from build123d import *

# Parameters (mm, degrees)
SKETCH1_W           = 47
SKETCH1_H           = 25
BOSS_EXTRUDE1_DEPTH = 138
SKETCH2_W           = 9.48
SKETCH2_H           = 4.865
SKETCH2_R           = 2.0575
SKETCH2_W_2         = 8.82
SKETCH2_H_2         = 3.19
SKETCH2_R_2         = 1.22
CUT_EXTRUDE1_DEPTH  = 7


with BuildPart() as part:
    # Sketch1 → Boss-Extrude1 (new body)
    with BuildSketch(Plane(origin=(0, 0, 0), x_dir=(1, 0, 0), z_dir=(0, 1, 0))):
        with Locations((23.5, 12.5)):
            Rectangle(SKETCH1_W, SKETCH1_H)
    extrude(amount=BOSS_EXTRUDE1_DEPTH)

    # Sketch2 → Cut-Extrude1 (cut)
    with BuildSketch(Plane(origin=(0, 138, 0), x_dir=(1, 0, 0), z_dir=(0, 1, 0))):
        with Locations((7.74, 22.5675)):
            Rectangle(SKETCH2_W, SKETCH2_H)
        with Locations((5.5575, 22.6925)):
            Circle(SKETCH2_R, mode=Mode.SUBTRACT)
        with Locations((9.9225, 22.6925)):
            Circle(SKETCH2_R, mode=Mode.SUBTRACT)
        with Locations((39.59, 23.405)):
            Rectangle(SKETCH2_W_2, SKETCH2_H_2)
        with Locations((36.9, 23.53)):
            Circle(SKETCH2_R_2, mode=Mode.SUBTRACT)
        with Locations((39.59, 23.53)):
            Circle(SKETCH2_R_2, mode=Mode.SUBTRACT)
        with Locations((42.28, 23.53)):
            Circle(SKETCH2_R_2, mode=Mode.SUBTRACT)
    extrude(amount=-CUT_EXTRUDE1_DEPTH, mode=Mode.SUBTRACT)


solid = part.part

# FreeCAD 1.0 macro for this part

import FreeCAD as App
import Part
import Sketcher

V = App.Vector

doc = App.newDocument("Part")
body = doc.addObject("PartDesign::Body", "Body")

# Sketch on XZ plane
sketch1 = body.newObject("Sketcher::SketchObject", "Sketch")
sketch1.AttachmentSupport = (doc.getObject("XZ_Plane"), [""])
sketch1.MapMode = "FlatFace"
sketch1.addGeometry([
    Part.LineSegment(V(0, -25, 0), V(0, 0, 0)),
    Part.LineSegment(V(0, 0, 0), V(47, 0, 0)),
    Part.LineSegment(V(47, 0, 0), V(47, -25, 0)),
    Part.LineSegment(V(47, -25, 0), V(0, -25, 0)),
], False)
sketch1.addConstraint([
    Sketcher.Constraint("Coincident", 0, 2, 1, 1),
    Sketcher.Constraint("Coincident", 1, 2, 2, 1),
    Sketcher.Constraint("Coincident", 2, 2, 3, 1),
    Sketcher.Constraint("Coincident", 3, 2, 0, 1),
    Sketcher.Constraint("Vertical", 0),
    Sketcher.Constraint("Horizontal", 1),
    Sketcher.Constraint("Vertical", 2),
    Sketcher.Constraint("Horizontal", 3),
    Sketcher.Constraint("Coincident", 0, 2, -1, 1),
    Sketcher.Constraint("DistanceX", 1, 1, 1, 2, 47.0),
    Sketcher.Constraint("DistanceY", 0, 1, 0, 2, 25.0),
])
pad1 = body.newObject("PartDesign::Pad", "Pad")
pad1.Profile = sketch1
pad1.Length = 138
pad1.Reversed = True

# Sketch on XZ plane
sketch2 = body.newObject("Sketcher::SketchObject", "Sketch001")
sketch2.AttachmentSupport = (doc.getObject("XZ_Plane"), [""])
sketch2.MapMode = "FlatFace"
sketch2.AttachmentOffset = App.Placement(V(0, 0, -138), App.Rotation())
sketch2.addGeometry([
    Part.LineSegment(V(3, -25, 0), V(3, -20.1, 0)),  # 0
    Part.LineSegment(V(3, -20.1, 0), V(12.5, -20.1, 0)),  # 1
    Part.LineSegment(V(12.5, -20.1, 0), V(12.5, -25, 0)),  # 2
    Part.LineSegment(V(12.5, -25, 0), V(3, -25, 0)),  # 3
    Part.Circle(V(5.6, -22.7, 0), V(0, 0, 1), 2.1),  # 4
    Part.Circle(V(9.9, -22.7, 0), V(0, 0, 1), 2.1),  # 5
    Part.LineSegment(V(35.2, -25, 0), V(35.2, -21.8, 0)),  # 6
    Part.LineSegment(V(35.2, -21.8, 0), V(44, -21.8, 0)),  # 7
    Part.LineSegment(V(44, -21.8, 0), V(44, -25, 0)),  # 8
    Part.LineSegment(V(44, -25, 0), V(35.2, -25, 0)),  # 9
    Part.Circle(V(36.9, -23.5, 0), V(0, 0, 1), 1.2),  # 10
    Part.Circle(V(39.6, -23.5, 0), V(0, 0, 1), 1.2),  # 11
    Part.Circle(V(42.3, -23.5, 0), V(0, 0, 1), 1.2),  # 12
], False)
sketch2.addConstraint([
    Sketcher.Constraint("Coincident", 0, 2, 1, 1),
    Sketcher.Constraint("Coincident", 1, 2, 2, 1),
    Sketcher.Constraint("Coincident", 2, 2, 3, 1),
    Sketcher.Constraint("Coincident", 3, 2, 0, 1),
    Sketcher.Constraint("Coincident", 6, 2, 7, 1),
    Sketcher.Constraint("Coincident", 7, 2, 8, 1),
    Sketcher.Constraint("Coincident", 8, 2, 9, 1),
    Sketcher.Constraint("Coincident", 9, 2, 6, 1),
    Sketcher.Constraint("Vertical", 0),
    Sketcher.Constraint("Horizontal", 1),
    Sketcher.Constraint("Vertical", 2),
    Sketcher.Constraint("Horizontal", 3),
    Sketcher.Constraint("Vertical", 6),
    Sketcher.Constraint("Horizontal", 7),
    Sketcher.Constraint("Vertical", 8),
    Sketcher.Constraint("Horizontal", 9),
    Sketcher.Constraint("Equal", 4, 5),
    Sketcher.Constraint("Equal", 10, 11),
    Sketcher.Constraint("Equal", 11, 12),
    Sketcher.Constraint("Horizontal", 4, 3, 5, 3),
    Sketcher.Constraint("Horizontal", 10, 3, 11, 3),
    Sketcher.Constraint("Horizontal", 11, 3, 12, 3),
    Sketcher.Constraint("Horizontal", 3, 2, 8, 2),
    Sketcher.Constraint("Diameter", 10, 2.44),
    Sketcher.Constraint("Diameter", 4, 4.115),
    Sketcher.Constraint("DistanceX", -1, 1, 0, 2, 3.0),
    Sketcher.Constraint("DistanceY", 2, 2, -1, 1, 25.0),
    Sketcher.Constraint("DistanceX", -1, 1, 7, 2, 44.0),
    Sketcher.Constraint("DistanceX", 1, 1, 1, 2, 9.48),
    Sketcher.Constraint("DistanceX", 7, 1, 7, 2, 8.82),
    Sketcher.Constraint("DistanceY", 6, 1, 6, 2, 3.19),
    Sketcher.Constraint("DistanceX", -1, 1, 10, 3, 36.9),
    Sketcher.Constraint("DistanceX", 6, 2, 12, 3, 7.1),
    Sketcher.Constraint("DistanceY", 0, 1, 0, 2, 4.865),
    Sketcher.Constraint("DistanceY", 10, 3, -1, 1, 23.53),
    Sketcher.Constraint("DistanceX", -1, 1, 11, 3, 39.59),
    Sketcher.Constraint("DistanceX", 4, 3, 5, 3, 4.365),
    Sketcher.Constraint("DistanceX", -1, 1, 4, 3, 5.5575),
    Sketcher.Constraint("DistanceY", 4, 3, -1, 1, 22.6925),
])
pocket1 = body.newObject("PartDesign::Pocket", "Pocket")
pocket1.Profile = sketch2
pocket1.Length = 7
pocket1.Reversed = True

doc.recompute()
